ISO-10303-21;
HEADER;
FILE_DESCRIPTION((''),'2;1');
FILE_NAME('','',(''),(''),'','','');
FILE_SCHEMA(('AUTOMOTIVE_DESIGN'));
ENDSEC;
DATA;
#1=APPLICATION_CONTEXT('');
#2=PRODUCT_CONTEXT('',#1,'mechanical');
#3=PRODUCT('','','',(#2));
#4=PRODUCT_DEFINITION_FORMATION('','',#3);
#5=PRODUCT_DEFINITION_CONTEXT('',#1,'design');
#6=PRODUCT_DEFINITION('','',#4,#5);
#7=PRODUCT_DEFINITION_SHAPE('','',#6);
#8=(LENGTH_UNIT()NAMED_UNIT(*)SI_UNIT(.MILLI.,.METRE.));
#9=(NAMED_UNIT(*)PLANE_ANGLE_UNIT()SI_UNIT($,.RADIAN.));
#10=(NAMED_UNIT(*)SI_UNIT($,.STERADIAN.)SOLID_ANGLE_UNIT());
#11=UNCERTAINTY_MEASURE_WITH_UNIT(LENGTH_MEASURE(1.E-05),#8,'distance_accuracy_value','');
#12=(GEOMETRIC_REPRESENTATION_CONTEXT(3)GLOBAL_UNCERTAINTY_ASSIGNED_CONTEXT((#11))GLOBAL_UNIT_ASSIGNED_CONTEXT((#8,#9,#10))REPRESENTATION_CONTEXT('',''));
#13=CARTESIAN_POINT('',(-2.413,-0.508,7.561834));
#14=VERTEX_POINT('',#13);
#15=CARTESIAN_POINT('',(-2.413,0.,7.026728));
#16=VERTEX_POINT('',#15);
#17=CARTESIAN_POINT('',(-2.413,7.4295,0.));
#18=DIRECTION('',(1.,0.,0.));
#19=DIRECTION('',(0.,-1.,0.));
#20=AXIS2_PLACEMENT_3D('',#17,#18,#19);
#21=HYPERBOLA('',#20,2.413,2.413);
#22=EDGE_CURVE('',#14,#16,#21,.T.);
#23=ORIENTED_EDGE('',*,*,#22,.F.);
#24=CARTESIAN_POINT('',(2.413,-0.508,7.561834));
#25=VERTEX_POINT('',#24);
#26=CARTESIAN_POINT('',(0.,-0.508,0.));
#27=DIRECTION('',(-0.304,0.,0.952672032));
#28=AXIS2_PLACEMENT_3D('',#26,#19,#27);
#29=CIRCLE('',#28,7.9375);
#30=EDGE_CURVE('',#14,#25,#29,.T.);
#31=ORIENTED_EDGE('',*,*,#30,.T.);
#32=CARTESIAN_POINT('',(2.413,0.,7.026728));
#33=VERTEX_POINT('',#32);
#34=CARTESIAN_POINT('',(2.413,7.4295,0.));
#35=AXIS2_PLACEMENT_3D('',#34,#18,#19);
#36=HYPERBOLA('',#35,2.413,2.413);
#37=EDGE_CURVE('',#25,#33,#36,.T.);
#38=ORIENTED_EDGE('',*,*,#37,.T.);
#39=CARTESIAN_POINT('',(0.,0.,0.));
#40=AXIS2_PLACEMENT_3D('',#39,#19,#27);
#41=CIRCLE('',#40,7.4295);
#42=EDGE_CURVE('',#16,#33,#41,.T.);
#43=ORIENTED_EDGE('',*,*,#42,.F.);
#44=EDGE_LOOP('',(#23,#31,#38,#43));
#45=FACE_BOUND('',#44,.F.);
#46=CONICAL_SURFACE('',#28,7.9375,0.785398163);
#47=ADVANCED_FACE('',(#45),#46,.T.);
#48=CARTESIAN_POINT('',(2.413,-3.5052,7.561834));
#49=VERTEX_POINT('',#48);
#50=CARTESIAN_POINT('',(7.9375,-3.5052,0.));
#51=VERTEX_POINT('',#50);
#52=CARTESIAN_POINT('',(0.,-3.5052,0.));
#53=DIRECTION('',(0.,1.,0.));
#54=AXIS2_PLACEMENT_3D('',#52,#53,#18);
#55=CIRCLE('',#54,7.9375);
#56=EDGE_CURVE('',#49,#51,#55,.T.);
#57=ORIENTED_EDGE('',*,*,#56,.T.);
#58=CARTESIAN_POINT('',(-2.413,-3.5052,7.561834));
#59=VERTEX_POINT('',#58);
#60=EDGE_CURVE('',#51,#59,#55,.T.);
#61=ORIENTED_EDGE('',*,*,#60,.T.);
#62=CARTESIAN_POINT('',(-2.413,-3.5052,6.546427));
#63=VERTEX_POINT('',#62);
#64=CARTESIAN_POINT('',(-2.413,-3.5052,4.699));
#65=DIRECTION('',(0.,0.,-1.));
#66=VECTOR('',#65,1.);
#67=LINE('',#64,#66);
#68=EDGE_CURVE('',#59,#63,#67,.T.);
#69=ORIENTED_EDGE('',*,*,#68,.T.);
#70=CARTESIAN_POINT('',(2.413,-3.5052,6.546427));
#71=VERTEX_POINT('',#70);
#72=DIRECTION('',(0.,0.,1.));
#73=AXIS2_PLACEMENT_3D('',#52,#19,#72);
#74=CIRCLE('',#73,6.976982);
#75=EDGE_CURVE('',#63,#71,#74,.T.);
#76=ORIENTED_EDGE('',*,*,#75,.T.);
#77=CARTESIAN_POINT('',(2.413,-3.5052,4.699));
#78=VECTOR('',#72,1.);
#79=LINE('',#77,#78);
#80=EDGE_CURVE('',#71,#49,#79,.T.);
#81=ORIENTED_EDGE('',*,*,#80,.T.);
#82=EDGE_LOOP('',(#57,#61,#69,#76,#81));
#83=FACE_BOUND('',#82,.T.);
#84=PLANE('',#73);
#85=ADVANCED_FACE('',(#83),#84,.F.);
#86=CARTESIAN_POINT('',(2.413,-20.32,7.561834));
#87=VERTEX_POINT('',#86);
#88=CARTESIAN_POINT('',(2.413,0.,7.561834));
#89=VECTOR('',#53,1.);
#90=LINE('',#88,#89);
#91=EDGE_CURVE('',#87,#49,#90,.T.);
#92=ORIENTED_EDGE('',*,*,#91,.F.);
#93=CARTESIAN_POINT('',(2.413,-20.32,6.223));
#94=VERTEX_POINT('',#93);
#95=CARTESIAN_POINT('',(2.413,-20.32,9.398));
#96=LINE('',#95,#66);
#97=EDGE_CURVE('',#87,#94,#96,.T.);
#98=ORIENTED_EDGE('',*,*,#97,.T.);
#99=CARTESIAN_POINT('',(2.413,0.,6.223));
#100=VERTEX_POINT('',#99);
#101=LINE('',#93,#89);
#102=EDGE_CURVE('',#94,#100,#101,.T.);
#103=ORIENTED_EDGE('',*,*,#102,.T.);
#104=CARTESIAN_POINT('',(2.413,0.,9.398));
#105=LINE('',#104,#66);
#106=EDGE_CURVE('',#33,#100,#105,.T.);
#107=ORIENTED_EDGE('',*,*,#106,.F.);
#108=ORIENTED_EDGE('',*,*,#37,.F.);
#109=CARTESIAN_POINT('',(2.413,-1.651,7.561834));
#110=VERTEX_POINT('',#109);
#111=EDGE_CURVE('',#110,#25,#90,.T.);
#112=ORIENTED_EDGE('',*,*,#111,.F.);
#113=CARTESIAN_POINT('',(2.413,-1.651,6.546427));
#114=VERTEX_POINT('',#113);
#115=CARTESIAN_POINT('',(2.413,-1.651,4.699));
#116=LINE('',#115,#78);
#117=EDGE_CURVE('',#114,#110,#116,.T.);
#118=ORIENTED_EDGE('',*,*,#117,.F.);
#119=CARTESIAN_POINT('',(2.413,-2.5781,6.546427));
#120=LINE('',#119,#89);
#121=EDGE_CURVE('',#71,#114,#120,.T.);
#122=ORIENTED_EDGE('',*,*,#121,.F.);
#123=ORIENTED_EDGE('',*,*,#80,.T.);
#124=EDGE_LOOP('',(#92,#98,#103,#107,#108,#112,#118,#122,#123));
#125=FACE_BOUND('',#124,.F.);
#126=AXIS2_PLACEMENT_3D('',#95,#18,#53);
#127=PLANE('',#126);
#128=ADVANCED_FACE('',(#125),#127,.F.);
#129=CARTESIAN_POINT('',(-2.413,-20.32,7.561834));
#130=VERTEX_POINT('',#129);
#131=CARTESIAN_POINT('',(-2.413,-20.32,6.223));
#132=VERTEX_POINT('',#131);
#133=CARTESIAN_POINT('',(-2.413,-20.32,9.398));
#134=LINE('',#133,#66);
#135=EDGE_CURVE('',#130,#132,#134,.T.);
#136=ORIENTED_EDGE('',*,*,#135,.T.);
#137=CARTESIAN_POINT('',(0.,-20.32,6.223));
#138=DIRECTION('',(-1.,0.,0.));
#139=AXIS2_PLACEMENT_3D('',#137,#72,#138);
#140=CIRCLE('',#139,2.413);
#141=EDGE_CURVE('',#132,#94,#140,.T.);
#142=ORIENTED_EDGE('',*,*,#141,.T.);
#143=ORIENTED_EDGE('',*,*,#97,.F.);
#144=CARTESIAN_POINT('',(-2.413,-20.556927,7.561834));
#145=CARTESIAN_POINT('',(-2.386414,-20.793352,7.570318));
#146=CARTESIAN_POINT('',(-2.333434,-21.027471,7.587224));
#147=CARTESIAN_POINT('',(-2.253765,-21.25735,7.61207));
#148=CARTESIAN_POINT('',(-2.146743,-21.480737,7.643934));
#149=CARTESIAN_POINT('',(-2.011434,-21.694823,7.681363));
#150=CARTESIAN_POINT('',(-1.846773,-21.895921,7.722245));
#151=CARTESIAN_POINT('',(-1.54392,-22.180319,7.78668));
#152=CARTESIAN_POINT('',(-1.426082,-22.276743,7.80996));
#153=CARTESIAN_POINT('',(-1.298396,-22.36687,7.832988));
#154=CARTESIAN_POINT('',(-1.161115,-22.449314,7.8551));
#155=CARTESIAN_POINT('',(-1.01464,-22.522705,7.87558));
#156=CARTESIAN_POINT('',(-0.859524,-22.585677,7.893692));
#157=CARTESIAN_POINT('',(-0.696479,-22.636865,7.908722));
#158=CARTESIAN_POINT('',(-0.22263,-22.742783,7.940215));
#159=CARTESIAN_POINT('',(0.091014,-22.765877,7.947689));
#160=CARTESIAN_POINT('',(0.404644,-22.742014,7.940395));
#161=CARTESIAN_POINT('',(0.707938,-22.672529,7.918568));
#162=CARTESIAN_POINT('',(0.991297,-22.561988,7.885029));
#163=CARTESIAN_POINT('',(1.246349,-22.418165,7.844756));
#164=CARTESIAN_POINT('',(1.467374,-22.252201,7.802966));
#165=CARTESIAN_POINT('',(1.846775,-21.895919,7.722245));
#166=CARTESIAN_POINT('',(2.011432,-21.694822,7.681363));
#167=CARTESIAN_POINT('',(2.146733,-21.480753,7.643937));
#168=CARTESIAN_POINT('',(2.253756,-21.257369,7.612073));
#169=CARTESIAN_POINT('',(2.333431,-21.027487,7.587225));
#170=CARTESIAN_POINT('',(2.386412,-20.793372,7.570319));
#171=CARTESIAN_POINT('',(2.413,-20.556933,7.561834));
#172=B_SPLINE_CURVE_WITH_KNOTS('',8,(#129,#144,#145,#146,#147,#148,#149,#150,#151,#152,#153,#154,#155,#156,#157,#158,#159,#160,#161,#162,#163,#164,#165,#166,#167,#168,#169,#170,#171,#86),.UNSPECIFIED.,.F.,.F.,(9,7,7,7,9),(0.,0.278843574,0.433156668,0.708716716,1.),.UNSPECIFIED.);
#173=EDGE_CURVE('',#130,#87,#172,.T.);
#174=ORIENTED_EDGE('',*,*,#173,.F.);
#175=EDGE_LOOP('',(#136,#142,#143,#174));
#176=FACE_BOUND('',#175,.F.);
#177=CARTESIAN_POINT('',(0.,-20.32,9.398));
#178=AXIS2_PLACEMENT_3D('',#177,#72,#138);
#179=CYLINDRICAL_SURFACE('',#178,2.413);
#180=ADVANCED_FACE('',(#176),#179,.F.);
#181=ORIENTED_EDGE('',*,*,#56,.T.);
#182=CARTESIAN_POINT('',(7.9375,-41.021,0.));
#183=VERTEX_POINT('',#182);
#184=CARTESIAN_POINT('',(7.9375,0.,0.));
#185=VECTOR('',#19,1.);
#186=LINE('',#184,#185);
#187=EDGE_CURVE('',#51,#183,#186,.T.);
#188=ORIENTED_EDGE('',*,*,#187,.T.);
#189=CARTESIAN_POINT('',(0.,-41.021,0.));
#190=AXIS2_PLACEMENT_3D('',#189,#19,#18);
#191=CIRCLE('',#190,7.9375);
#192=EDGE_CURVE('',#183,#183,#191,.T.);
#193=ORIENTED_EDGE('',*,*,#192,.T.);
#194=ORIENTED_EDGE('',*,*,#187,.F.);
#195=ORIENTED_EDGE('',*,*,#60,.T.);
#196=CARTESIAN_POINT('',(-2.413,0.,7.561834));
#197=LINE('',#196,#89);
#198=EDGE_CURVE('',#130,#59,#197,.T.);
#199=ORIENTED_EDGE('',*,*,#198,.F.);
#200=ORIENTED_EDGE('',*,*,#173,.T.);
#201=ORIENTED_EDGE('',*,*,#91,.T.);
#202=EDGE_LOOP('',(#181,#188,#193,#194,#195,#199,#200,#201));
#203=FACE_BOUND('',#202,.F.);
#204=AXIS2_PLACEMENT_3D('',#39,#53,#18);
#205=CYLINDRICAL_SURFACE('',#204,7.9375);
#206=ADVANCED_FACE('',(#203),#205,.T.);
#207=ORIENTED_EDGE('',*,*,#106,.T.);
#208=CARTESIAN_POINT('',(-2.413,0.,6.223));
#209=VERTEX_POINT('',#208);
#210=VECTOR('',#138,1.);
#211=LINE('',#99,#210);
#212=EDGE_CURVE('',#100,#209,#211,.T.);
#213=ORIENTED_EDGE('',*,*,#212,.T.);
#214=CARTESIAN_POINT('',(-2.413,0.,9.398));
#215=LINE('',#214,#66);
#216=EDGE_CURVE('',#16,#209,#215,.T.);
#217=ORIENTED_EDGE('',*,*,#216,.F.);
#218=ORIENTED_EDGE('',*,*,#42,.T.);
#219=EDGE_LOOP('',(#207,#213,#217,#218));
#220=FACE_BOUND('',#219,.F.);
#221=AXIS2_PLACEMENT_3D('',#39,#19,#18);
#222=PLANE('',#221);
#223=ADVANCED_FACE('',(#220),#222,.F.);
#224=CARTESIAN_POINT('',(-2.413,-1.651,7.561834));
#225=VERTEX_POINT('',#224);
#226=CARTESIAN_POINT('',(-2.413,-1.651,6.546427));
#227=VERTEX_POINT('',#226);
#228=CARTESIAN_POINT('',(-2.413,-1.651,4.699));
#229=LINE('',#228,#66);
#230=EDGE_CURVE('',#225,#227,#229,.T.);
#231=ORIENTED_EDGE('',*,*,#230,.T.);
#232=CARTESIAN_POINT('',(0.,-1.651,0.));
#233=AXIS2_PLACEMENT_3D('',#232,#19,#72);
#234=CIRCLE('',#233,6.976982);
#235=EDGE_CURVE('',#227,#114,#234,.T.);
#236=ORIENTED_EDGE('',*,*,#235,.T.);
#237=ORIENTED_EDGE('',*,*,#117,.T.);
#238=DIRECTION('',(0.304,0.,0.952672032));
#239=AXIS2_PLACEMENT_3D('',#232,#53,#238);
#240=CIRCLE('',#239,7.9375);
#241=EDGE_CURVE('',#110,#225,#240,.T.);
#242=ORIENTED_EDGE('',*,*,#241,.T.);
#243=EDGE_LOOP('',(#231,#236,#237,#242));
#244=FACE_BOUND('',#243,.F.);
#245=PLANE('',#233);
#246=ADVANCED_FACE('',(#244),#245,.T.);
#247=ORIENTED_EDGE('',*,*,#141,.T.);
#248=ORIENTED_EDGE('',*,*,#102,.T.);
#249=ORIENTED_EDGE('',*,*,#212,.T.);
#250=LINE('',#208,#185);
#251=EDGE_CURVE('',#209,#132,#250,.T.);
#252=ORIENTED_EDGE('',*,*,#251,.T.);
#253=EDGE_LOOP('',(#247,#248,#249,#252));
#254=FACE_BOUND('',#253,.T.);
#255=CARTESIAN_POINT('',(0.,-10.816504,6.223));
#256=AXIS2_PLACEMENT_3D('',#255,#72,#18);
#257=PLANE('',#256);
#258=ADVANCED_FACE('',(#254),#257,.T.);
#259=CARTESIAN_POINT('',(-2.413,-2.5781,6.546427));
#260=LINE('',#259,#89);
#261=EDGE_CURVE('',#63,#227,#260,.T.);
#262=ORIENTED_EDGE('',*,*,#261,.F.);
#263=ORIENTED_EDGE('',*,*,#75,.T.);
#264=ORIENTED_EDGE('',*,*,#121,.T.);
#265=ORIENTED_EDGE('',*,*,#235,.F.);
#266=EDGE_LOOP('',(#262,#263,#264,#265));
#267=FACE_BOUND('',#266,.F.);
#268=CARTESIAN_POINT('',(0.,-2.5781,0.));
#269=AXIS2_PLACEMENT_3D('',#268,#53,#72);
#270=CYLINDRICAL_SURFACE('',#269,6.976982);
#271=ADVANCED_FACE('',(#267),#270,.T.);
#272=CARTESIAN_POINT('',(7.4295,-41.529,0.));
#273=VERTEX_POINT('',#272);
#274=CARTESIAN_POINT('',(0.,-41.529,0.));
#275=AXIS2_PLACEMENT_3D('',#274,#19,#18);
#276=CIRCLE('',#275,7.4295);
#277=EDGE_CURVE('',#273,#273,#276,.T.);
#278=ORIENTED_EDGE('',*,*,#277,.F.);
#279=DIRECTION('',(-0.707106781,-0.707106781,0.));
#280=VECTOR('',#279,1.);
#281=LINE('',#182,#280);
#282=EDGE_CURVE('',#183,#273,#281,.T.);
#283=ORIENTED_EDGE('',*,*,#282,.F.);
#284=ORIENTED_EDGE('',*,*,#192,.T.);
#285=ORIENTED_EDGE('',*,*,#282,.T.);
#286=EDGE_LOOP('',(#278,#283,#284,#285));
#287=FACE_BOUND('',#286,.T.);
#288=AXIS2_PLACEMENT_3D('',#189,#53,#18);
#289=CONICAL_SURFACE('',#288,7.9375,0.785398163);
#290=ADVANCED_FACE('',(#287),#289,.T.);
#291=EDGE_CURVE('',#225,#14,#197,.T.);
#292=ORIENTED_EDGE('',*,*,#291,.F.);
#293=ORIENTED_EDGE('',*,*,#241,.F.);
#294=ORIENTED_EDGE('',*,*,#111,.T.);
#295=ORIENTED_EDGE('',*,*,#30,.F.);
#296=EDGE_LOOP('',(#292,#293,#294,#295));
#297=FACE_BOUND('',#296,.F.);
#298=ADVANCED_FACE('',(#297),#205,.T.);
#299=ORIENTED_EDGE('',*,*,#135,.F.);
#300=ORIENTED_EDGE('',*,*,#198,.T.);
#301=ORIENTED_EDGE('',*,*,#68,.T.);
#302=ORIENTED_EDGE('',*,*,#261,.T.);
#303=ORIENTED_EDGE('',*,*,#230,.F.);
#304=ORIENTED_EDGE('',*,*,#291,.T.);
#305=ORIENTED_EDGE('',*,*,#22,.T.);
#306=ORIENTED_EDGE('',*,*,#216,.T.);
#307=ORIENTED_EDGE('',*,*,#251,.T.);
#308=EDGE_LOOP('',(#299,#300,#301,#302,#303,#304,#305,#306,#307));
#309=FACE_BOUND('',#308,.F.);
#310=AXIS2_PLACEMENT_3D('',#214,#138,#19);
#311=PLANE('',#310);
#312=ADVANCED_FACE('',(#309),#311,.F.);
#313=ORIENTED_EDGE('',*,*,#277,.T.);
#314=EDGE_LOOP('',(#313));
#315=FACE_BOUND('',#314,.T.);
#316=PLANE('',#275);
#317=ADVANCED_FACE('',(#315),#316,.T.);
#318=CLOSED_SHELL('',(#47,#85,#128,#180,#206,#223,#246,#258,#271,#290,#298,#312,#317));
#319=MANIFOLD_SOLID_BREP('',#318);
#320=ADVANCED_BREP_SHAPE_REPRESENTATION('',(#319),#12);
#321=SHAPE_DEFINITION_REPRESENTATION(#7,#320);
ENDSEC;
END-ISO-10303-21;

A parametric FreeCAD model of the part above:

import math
import FreeCAD as App
import Part
import Sketcher

V = App.Vector
Q = App.Units.Quantity


def edges_at(feature, points):
    """Names of the edges that pass closest to the given points."""
    edges = feature.Shape.Edges
    near = lambda p: min(range(len(edges)), key=lambda i: edges[i].distToShape(Part.Vertex(*p))[0])
    return sorted({f"Edge{near(p) + 1}" for p in points})


def add_polygon(sketch, points):
    """Adds a closed chain of lines whose ends are joined by coincident constraints."""
    first, n = sketch.GeometryCount, len(points)
    for a, b in zip(points, points[1:] + points[:1]):
        sketch.addGeometry(Part.LineSegment(App.Vector(*a, 0), App.Vector(*b, 0)), False)
    for i in range(n):
        sketch.addConstraint(Sketcher.Constraint("Coincident", first + i, 2, first + (i + 1) % n, 1))

doc = App.newDocument("Part")
params = doc.addObject("Spreadsheet::Sheet", "Params")
for row, (alias, value) in enumerate([
    ("sketch1_diameter", "0.625 in"),
    ("pad1_length", "1.635 in"),
    ("sketch2_height", "0.8 in"),
    ("sketch2_radius", "0.095 in"),
    ("pocket1_length", "0.125 in"),
    ("sketch3_height", "0.12 in"),
    ("sketch3_width", "0.073 in"),
    ("groove_angle", "360 deg"),
    ("chamfer_size", "0.02 in"),
], start=1):
    params.set(f"A{row}", alias)
    params.set(f"B{row}", "=" + value)
    params.setAlias(f"B{row}", alias)

body = doc.addObject("PartDesign::Body", "Body")

# Sketch on XZ plane
sketch1 = body.newObject("Sketcher::SketchObject", "Sketch")
sketch1.AttachmentSupport = (doc.getObject("XZ_Plane"), [""])
sketch1.MapMode = "FlatFace"
sketch1.addGeometry(Part.Circle(V(0, 0, 0), V(0, 0, 1), 8), False)
sketch1.addConstraint([
    Sketcher.Constraint("Coincident", 0, 3, -1, 1),
    Sketcher.Constraint("Diameter", 0, Q("0.625 in")),
])
sketch1.setExpression("Constraints[1]", "Params.sketch1_diameter")
pad1 = body.newObject("PartDesign::Pad", "Pad")
pad1.Profile = sketch1
pad1.setExpression("Length", "Params.pad1_length")

# Sketch on XY plane
sketch2 = body.newObject("Sketcher::SketchObject", "Sketch001")
sketch2.AttachmentSupport = (doc.getObject("XY_Plane"), [""])
sketch2.MapMode = "FlatFace"
sketch2.AttachmentOffset = App.Placement(V(0, 0, 0.37 * 25.4), App.Rotation())
sketch2.addGeometry([
    Part.LineSegment(V(2.4, -20.3, 0), V(2.4, 0, 0)),
    Part.LineSegment(V(2.4, 0, 0), V(-2.4, 0, 0)),
    Part.LineSegment(V(-2.4, 0, 0), V(-2.4, -20.3, 0)),
    Part.ArcOfCircle(Part.Circle(V(0, -20.3, 0), V(0, 0, 1), 2.4), math.radians(180), math.radians(360)),
], False)
sketch2.addConstraint([
    Sketcher.Constraint("Coincident", 0, 2, 1, 1),
    Sketcher.Constraint("Coincident", 1, 2, 2, 1),
    Sketcher.Constraint("Tangent", 2, 2, 3, 1),
    Sketcher.Constraint("Tangent", 3, 2, 0, 1),
    Sketcher.Constraint("Vertical", 0),
    Sketcher.Constraint("Horizontal", 1),
    Sketcher.Constraint("Vertical", 2),
    Sketcher.Constraint("Symmetric", 0, 2, 1, 2, -1, 1),
    Sketcher.Constraint("DistanceY", 0, 1, 0, 2, Q("0.8 in")),
    Sketcher.Constraint("Radius", 3, Q("0.095 in")),
])
sketch2.setExpression("Constraints[8]", "Params.sketch2_height")
sketch2.setExpression("Constraints[9]", "Params.sketch2_radius")
pocket1 = body.newObject("PartDesign::Pocket", "Pocket")
pocket1.Profile = sketch2
pocket1.setExpression("Length", "Params.pocket1_length")

# Sketch on YZ plane
sketch3 = body.newObject("Sketcher::SketchObject", "Sketch002")
sketch3.AttachmentSupport = (doc.getObject("YZ_Plane"), [""])
sketch3.MapMode = "FlatFace"
add_polygon(sketch3, [(-3.5, 10), (-3.5, 7), (-1.7, 7), (-1.7, 10)])  # lines 0-3
sketch3.addConstraint([
    Sketcher.Constraint("Vertical", 0),
    Sketcher.Constraint("Horizontal", 1),
    Sketcher.Constraint("Vertical", 2),
    Sketcher.Constraint("Horizontal", 3),
    Sketcher.Constraint("DistanceY", 0, 2, 0, 1, Q("0.12 in")),
    Sketcher.Constraint("DistanceX", 1, 1, 1, 2, Q("0.073 in")),
    Sketcher.Constraint("DistanceX", 0, 2, -1, 1, Q("0.138 in")),
    Sketcher.Constraint("DistanceY", -1, 1, 0, 2, 6.976982),
])
sketch3.setExpression("Constraints[8]", "Params.sketch3_height")
sketch3.setExpression("Constraints[9]", "Params.sketch3_width")
groove = body.newObject("PartDesign::Groove", "Groove")
groove.Profile = sketch3
groove.ReferenceAxis = (sketch3, ["H_Axis"])
groove.setExpression("Angle", "Params.groove_angle")
doc.recompute()

chamfer = body.newObject("PartDesign::Chamfer", "Chamfer")
chamfer.Base = (groove, edges_at(groove, [(-7.938, -41.529, 0), (0, 0, -7.938)]))
chamfer.setExpression("Size", "Params.chamfer_size")

doc.recompute()
